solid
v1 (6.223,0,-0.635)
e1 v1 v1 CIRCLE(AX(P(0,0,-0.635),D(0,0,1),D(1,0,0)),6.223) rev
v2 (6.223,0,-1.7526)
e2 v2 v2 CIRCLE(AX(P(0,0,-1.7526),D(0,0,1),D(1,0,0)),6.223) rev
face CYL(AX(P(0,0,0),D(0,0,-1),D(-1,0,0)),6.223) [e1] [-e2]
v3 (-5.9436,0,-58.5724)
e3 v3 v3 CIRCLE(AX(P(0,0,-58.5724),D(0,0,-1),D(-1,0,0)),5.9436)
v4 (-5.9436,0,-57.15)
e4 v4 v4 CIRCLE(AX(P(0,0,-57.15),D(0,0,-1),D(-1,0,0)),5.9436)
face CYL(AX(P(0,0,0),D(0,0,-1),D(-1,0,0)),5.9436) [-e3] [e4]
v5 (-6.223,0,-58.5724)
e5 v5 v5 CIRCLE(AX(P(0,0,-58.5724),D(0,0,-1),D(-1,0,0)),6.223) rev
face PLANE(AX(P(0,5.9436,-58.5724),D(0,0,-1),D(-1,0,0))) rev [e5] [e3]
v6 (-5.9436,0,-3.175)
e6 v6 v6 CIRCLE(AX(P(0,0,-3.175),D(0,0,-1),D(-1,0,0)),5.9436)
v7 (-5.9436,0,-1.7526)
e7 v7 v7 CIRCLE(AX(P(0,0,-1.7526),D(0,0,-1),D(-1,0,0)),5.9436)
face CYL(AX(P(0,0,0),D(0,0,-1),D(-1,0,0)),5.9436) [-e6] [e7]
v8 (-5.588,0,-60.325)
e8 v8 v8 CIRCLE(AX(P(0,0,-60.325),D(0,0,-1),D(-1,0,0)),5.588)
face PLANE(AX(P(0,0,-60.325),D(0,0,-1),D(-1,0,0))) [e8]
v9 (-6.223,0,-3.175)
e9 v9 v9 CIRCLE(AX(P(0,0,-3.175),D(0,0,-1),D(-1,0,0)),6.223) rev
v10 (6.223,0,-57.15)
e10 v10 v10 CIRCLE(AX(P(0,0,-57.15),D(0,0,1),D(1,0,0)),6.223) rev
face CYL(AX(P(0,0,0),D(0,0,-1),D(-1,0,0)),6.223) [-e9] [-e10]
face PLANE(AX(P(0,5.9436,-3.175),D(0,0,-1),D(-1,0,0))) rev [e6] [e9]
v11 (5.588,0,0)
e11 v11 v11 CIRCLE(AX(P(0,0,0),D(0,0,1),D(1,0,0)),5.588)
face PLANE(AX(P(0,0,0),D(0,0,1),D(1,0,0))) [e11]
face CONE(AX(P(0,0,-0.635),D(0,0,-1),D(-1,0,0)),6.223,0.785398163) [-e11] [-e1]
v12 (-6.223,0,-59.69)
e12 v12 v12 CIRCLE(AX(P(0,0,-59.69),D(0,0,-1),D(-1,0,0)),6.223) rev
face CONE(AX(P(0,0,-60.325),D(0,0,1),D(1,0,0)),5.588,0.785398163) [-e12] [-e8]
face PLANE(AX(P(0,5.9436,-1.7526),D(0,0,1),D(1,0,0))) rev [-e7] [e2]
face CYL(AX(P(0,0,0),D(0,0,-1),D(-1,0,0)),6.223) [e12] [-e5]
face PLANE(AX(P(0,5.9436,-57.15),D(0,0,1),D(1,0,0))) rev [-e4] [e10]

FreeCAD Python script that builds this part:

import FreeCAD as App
import Part
import Sketcher
Q = App.Units.Quantity


def edges_at(feature, points):
    """Names of the edges that pass closest to the given points."""
    edges = feature.Shape.Edges
    near = lambda p: min(range(len(edges)), key=lambda i: edges[i].distToShape(Part.Vertex(*p))[0])
    return sorted({f"Edge{near(p) + 1}" for p in points})


def add_polygon(sketch, points):
    """Adds a closed chain of lines whose ends are joined by coincident constraints."""
    first, n = sketch.GeometryCount, len(points)
    for a, b in zip(points, points[1:] + points[:1]):
        sketch.addGeometry(Part.LineSegment(App.Vector(*a, 0), App.Vector(*b, 0)), False)
    for i in range(n):
        sketch.addConstraint(Sketcher.Constraint("Coincident", first + i, 2, first + (i + 1) % n, 1))

doc = App.newDocument("Part")
body = doc.addObject("PartDesign::Body", "Body")

# Sketch on YZ plane
sketch1 = body.newObject("Sketcher::SketchObject", "Sketch")
sketch1.AttachmentSupport = (doc.getObject("YZ_Plane"), [""])
sketch1.MapMode = "FlatFace"
add_polygon(sketch1, [(6, 0), (0, 0), (0, -60), (6, -60)])  # lines 0-3
sketch1.addConstraint([
    Sketcher.Constraint("Horizontal", 0),
    Sketcher.Constraint("Vertical", 1),
    Sketcher.Constraint("Horizontal", 2),
    Sketcher.Constraint("Vertical", 3),
    Sketcher.Constraint("Coincident", 0, 2, -1, 1),
    Sketcher.Constraint("DistanceX", 0, 2, 0, 1, Q("0.245 in")),
    Sketcher.Constraint("DistanceY", 1, 2, 1, 1, Q("2.375 in")),
])
revolution = body.newObject("PartDesign::Revolution", "Revolution")
revolution.Profile = sketch1
revolution.ReferenceAxis = (sketch1, ["V_Axis"])
revolution.Angle = 360

# Sketch on YZ plane
sketch2 = body.newObject("Sketcher::SketchObject", "Sketch001")
sketch2.AttachmentSupport = (doc.getObject("YZ_Plane"), [""])
sketch2.MapMode = "FlatFace"
add_polygon(sketch2, [(6.8, -1.8), (5.9, -1.8), (5.9, -3.2), (6.8, -3.2)])  # lines 0-3
add_polygon(sketch2, [(6.8, -57.1), (5.9, -57.1), (5.9, -58.6), (6.8, -58.6)])  # lines 4-7
sketch2.addConstraint([
    Sketcher.Constraint("Horizontal", 0),
    Sketcher.Constraint("Vertical", 1),
    Sketcher.Constraint("Horizontal", 2),
    Sketcher.Constraint("Vertical", 3),
    Sketcher.Constraint("Horizontal", 4),
    Sketcher.Constraint("Vertical", 5),
    Sketcher.Constraint("Horizontal", 6),
    Sketcher.Constraint("Vertical", 7),
    Sketcher.Constraint("Vertical", 1, 2, 4, 2),
    Sketcher.Constraint("Vertical", 3, 2, 6, 2),
    Sketcher.Constraint("Equal", 3, 5),
    Sketcher.Constraint("DistanceX", 0, 2, 0, 1, Q("0.032 in")),
    Sketcher.Constraint("DistanceY", 1, 2, 1, 1, Q("0.056 in")),
    Sketcher.Constraint("DistanceY", 4, 2, -1, 1, Q("2.25 in")),
    Sketcher.Constraint("DistanceX", -1, 1, 0, 2, Q("0.234 in")),
    Sketcher.Constraint("DistanceY", 0, 2, -1, 1, Q("0.069 in")),
])
groove = body.newObject("PartDesign::Groove", "Groove")
groove.Profile = sketch2
groove.ReferenceAxis = (sketch2, ["V_Axis"])
groove.Angle = 360
doc.recompute()

chamfer = body.newObject("PartDesign::Chamfer", "Chamfer")
chamfer.Base = (groove, edges_at(groove, [(6.223, 0, -60.325), (6.223, 0, 0)]))
chamfer.Size = Q("0.025 in")

doc.recompute()
